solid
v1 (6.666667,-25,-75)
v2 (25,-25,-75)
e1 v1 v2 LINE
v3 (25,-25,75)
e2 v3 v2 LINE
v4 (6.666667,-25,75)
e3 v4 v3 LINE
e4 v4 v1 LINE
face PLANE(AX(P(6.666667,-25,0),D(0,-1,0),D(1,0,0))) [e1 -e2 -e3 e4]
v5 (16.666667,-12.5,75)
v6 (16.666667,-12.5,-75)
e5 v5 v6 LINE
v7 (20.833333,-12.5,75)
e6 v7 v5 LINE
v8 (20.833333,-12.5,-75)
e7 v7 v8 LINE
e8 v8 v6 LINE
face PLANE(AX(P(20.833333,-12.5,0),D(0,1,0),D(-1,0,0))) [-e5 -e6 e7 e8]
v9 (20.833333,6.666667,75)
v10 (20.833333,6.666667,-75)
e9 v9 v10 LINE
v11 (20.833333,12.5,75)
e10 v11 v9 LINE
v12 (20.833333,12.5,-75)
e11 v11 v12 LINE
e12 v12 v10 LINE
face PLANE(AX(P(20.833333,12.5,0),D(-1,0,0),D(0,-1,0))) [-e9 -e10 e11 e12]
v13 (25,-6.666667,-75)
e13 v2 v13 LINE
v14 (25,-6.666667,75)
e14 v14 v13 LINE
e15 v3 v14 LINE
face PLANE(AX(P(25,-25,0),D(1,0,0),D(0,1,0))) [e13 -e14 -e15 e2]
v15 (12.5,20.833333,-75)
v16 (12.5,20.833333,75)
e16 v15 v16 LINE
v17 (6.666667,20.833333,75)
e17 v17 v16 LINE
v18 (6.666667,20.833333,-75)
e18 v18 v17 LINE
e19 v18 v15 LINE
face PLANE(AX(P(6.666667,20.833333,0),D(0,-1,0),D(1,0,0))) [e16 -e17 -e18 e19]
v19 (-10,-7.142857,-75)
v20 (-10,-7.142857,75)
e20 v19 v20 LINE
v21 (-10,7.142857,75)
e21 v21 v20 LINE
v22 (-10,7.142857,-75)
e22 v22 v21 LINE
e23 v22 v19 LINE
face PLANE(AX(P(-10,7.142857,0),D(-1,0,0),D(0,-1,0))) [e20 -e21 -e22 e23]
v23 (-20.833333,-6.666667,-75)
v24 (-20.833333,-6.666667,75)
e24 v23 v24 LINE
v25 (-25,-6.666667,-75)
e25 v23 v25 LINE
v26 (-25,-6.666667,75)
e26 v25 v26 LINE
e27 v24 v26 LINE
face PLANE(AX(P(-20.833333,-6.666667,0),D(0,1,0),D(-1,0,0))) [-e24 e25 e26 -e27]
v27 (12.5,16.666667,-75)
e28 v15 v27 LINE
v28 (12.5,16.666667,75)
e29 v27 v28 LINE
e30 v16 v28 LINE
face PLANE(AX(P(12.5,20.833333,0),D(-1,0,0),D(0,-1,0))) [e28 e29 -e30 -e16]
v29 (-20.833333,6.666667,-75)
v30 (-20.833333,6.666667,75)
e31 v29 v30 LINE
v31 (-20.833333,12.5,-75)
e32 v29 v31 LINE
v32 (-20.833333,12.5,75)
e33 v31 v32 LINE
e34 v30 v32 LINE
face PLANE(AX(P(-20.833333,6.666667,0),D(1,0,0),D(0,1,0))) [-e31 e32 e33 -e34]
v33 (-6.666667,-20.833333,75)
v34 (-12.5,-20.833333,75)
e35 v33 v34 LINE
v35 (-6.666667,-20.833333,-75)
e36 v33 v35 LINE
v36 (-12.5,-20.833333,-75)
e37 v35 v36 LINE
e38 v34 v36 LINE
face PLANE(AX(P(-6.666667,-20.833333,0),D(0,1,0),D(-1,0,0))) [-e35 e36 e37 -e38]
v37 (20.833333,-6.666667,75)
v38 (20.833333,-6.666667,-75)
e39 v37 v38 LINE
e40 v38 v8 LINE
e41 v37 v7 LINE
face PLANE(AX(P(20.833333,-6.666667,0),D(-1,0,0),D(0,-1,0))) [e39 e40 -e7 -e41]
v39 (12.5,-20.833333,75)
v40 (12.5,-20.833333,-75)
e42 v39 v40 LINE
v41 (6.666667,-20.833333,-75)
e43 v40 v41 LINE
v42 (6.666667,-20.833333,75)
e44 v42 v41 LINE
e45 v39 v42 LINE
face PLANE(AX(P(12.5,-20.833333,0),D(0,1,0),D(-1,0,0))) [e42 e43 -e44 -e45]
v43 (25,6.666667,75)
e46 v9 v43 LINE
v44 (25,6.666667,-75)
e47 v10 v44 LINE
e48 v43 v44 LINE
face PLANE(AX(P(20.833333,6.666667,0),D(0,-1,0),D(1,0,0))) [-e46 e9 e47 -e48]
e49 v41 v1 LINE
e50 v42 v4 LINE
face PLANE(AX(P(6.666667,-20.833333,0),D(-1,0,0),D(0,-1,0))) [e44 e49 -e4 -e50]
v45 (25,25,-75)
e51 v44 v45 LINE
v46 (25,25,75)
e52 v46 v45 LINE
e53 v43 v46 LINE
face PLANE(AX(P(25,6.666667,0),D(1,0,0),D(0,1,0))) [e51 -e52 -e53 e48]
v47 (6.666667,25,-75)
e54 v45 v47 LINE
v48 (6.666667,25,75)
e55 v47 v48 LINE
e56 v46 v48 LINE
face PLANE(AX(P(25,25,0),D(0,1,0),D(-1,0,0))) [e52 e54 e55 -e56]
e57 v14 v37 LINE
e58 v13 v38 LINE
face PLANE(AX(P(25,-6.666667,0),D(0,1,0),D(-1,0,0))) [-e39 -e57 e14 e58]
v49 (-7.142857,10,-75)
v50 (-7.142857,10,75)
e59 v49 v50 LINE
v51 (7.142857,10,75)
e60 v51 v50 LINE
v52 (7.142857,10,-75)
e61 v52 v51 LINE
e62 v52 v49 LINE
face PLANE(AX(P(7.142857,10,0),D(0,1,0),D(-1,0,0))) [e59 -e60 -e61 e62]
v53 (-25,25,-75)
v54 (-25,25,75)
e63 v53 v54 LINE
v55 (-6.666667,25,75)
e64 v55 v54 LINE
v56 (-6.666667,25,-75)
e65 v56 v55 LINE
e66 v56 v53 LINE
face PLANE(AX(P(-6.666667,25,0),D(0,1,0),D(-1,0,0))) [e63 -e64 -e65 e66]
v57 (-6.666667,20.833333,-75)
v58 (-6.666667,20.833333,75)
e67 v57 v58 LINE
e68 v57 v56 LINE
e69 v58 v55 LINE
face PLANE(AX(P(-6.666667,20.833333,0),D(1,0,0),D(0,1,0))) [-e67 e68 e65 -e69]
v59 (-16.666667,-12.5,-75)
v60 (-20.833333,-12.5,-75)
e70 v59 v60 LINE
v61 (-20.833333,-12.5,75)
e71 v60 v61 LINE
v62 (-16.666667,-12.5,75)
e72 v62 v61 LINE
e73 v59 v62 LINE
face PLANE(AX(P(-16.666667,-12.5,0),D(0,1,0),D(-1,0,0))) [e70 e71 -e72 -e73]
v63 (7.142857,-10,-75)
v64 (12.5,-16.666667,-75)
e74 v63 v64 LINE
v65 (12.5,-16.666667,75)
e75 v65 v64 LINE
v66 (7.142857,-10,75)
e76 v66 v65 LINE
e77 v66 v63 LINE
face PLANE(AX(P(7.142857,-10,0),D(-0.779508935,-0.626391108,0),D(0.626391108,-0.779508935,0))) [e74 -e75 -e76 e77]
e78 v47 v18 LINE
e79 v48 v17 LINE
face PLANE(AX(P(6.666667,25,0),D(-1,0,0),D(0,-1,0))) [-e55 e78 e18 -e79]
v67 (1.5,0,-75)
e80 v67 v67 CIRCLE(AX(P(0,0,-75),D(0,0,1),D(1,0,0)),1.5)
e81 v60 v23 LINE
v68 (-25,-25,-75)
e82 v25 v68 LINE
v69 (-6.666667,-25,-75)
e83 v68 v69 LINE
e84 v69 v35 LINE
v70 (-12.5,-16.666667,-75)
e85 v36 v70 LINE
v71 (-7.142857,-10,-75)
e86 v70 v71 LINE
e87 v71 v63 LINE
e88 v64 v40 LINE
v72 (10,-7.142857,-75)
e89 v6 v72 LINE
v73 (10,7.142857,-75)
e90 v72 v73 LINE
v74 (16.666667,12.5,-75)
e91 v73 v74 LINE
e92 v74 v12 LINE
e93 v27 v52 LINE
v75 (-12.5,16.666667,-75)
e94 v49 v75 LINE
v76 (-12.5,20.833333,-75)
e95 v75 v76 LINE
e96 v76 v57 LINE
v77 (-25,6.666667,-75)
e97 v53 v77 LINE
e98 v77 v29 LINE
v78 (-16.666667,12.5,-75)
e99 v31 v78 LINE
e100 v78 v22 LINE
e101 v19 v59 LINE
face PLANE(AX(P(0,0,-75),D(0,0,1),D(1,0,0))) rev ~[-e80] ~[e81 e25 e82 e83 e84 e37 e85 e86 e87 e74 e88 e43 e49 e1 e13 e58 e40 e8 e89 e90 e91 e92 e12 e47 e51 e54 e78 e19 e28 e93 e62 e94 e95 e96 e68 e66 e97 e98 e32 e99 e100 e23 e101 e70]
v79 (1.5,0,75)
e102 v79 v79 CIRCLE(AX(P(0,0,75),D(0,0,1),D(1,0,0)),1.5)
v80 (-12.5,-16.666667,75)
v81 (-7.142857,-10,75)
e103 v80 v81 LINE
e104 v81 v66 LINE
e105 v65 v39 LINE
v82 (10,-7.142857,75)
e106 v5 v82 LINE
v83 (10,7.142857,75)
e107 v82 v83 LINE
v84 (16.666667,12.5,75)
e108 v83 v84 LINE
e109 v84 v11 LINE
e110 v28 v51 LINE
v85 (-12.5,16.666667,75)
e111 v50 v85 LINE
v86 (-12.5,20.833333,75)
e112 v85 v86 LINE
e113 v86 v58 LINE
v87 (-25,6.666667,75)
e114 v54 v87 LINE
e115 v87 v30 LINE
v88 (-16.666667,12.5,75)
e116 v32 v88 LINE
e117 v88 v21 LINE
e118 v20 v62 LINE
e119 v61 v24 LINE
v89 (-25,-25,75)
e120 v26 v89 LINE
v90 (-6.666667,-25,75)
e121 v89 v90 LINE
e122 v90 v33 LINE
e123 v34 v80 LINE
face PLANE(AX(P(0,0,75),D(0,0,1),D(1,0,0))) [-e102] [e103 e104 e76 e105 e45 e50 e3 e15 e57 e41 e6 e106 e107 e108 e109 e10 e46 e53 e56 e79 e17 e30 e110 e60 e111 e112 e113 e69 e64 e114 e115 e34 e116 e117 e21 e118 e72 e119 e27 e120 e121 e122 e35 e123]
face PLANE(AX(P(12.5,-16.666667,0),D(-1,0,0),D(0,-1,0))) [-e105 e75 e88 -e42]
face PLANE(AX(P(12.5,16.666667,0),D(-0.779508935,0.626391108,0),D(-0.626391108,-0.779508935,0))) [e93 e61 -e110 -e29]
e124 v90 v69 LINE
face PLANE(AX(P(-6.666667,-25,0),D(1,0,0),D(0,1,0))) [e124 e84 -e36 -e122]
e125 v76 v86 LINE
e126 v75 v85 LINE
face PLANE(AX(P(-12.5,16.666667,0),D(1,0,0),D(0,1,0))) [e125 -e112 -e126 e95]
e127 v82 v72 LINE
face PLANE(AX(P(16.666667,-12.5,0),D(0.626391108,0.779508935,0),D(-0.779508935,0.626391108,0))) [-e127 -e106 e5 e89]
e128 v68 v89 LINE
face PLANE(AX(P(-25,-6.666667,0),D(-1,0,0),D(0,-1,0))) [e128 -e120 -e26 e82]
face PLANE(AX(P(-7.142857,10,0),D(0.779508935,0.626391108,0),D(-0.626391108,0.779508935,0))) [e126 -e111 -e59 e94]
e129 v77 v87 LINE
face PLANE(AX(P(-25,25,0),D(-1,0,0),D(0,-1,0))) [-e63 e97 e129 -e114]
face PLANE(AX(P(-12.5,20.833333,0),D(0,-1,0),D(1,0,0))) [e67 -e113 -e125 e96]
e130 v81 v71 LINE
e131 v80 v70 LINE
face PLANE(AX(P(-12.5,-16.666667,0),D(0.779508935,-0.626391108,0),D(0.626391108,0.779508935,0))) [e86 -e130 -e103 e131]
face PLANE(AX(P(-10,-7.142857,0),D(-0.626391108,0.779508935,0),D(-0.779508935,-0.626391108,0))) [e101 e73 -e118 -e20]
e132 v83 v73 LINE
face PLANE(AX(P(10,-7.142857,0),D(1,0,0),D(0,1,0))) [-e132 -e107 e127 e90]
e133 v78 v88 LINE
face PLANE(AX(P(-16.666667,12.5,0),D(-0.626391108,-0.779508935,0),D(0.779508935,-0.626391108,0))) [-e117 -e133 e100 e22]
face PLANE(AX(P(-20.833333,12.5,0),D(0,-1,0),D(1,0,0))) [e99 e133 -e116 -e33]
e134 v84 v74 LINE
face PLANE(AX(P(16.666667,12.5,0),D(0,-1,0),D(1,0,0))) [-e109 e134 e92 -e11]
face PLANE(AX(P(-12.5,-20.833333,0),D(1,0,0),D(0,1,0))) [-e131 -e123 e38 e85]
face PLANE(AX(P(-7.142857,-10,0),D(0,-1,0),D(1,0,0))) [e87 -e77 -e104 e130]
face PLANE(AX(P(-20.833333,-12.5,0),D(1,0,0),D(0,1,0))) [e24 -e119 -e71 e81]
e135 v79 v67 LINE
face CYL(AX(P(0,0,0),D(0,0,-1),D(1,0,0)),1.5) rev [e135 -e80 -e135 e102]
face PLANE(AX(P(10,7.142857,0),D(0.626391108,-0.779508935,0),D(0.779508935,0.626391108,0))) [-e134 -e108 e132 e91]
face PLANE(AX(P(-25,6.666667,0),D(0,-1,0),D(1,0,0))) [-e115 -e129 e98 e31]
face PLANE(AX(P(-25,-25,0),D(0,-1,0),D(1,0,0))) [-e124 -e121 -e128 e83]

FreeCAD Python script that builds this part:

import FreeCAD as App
import Part
import Sketcher

V = App.Vector

doc = App.newDocument("Part")
body = doc.addObject("PartDesign::Body", "Body")

sketch1 = doc.addObject("Sketcher::SketchObject", "Sketch")
body.addObject(sketch1)
sketch1.AttachmentSupport = (doc.XY_Plane, [""])
sketch1.MapMode = "FlatFace"
sketch1.addGeometry(Part.LineSegment(V(25, 25, 0), V(6.7, 25, 0)), False)
sketch1.addGeometry(Part.LineSegment(V(6.7, 25, 0), V(6.7, 20.8, 0)), False)
sketch1.addGeometry(Part.LineSegment(V(6.7, 20.8, 0), V(12.5, 20.8, 0)), False)
sketch1.addGeometry(Part.LineSegment(V(12.5, 20.8, 0), V(12.5, 16.7, 0)), False)
sketch1.addGeometry(Part.LineSegment(V(12.5, 16.7, 0), V(7.1, 10, 0)), False)
sketch1.addGeometry(Part.LineSegment(V(7.1, 10, 0), V(-7.1, 10, 0)), False)
sketch1.addGeometry(Part.LineSegment(V(-7.1, 10, 0), V(-12.5, 16.7, 0)), False)
sketch1.addGeometry(Part.LineSegment(V(-12.5, 16.7, 0), V(-12.5, 20.8, 0)), False)
sketch1.addGeometry(Part.LineSegment(V(-12.5, 20.8, 0), V(-6.7, 20.8, 0)), False)
sketch1.addGeometry(Part.LineSegment(V(-6.7, 20.8, 0), V(-6.7, 25, 0)), False)
sketch1.addGeometry(Part.LineSegment(V(-6.7, 25, 0), V(-25, 25, 0)), False)
sketch1.addGeometry(Part.LineSegment(V(-25, 25, 0), V(-25, 6.7, 0)), False)
sketch1.addGeometry(Part.LineSegment(V(-25, 6.7, 0), V(-20.8, 6.7, 0)), False)
sketch1.addGeometry(Part.LineSegment(V(-20.8, 6.7, 0), V(-20.8, 12.5, 0)), False)
sketch1.addGeometry(Part.LineSegment(V(-20.8, 12.5, 0), V(-16.7, 12.5, 0)), False)
sketch1.addGeometry(Part.LineSegment(V(-16.7, 12.5, 0), V(-10, 7.1, 0)), False)
sketch1.addGeometry(Part.LineSegment(V(-10, 7.1, 0), V(-10, -7.1, 0)), False)
sketch1.addGeometry(Part.LineSegment(V(-10, -7.1, 0), V(-16.7, -12.5, 0)), False)
sketch1.addGeometry(Part.LineSegment(V(-16.7, -12.5, 0), V(-20.8, -12.5, 0)), False)
sketch1.addGeometry(Part.LineSegment(V(-20.8, -12.5, 0), V(-20.8, -6.7, 0)), False)
sketch1.addGeometry(Part.LineSegment(V(-20.8, -6.7, 0), V(-25, -6.7, 0)), False)
sketch1.addGeometry(Part.LineSegment(V(-25, -6.7, 0), V(-25, -25, 0)), False)
sketch1.addGeometry(Part.LineSegment(V(-25, -25, 0), V(-6.7, -25, 0)), False)
sketch1.addGeometry(Part.LineSegment(V(-6.7, -25, 0), V(-6.7, -20.8, 0)), False)
sketch1.addGeometry(Part.LineSegment(V(-6.7, -20.8, 0), V(-12.5, -20.8, 0)), False)
sketch1.addGeometry(Part.LineSegment(V(-12.5, -20.8, 0), V(-12.5, -16.7, 0)), False)
sketch1.addGeometry(Part.LineSegment(V(-12.5, -16.7, 0), V(-7.1, -10, 0)), False)
sketch1.addGeometry(Part.LineSegment(V(-7.1, -10, 0), V(7.1, -10, 0)), False)
sketch1.addGeometry(Part.LineSegment(V(7.1, -10, 0), V(12.5, -16.7, 0)), False)
sketch1.addGeometry(Part.LineSegment(V(12.5, -16.7, 0), V(12.5, -20.8, 0)), False)
sketch1.addGeometry(Part.LineSegment(V(12.5, -20.8, 0), V(6.7, -20.8, 0)), False)
sketch1.addGeometry(Part.LineSegment(V(6.7, -20.8, 0), V(6.7, -25, 0)), False)
sketch1.addGeometry(Part.LineSegment(V(6.7, -25, 0), V(25, -25, 0)), False)
sketch1.addGeometry(Part.LineSegment(V(25, -25, 0), V(25, -6.7, 0)), False)
sketch1.addGeometry(Part.LineSegment(V(25, -6.7, 0), V(20.8, -6.7, 0)), False)
sketch1.addGeometry(Part.LineSegment(V(20.8, -6.7, 0), V(20.8, -12.5, 0)), False)
sketch1.addGeometry(Part.LineSegment(V(20.8, -12.5, 0), V(16.7, -12.5, 0)), False)
sketch1.addGeometry(Part.LineSegment(V(16.7, -12.5, 0), V(10, -7.1, 0)), False)
sketch1.addGeometry(Part.LineSegment(V(10, -7.1, 0), V(10, 7.1, 0)), False)
sketch1.addGeometry(Part.LineSegment(V(10, 7.1, 0), V(16.7, 12.5, 0)), False)
sketch1.addGeometry(Part.LineSegment(V(16.7, 12.5, 0), V(20.8, 12.5, 0)), False)
sketch1.addGeometry(Part.LineSegment(V(20.8, 12.5, 0), V(20.8, 6.7, 0)), False)
sketch1.addGeometry(Part.LineSegment(V(20.8, 6.7, 0), V(25, 6.7, 0)), False)
sketch1.addGeometry(Part.LineSegment(V(25, 6.7, 0), V(25, 25, 0)), False)
sketch1.addGeometry(Part.Circle(V(0, 0, 0), V(0, 0, 1), 1.5), False)
sketch1.addConstraint(Sketcher.Constraint("Coincident", 0, 2, 1, 1))
sketch1.addConstraint(Sketcher.Constraint("Coincident", 1, 2, 2, 1))
sketch1.addConstraint(Sketcher.Constraint("Coincident", 2, 2, 3, 1))
sketch1.addConstraint(Sketcher.Constraint("Coincident", 3, 2, 4, 1))
sketch1.addConstraint(Sketcher.Constraint("Coincident", 4, 2, 5, 1))
sketch1.addConstraint(Sketcher.Constraint("Coincident", 5, 2, 6, 1))
sketch1.addConstraint(Sketcher.Constraint("Coincident", 6, 2, 7, 1))
sketch1.addConstraint(Sketcher.Constraint("Coincident", 7, 2, 8, 1))
sketch1.addConstraint(Sketcher.Constraint("Coincident", 8, 2, 9, 1))
sketch1.addConstraint(Sketcher.Constraint("Coincident", 9, 2, 10, 1))
sketch1.addConstraint(Sketcher.Constraint("Coincident", 10, 2, 11, 1))
sketch1.addConstraint(Sketcher.Constraint("Coincident", 11, 2, 12, 1))
sketch1.addConstraint(Sketcher.Constraint("Coincident", 12, 2, 13, 1))
sketch1.addConstraint(Sketcher.Constraint("Coincident", 13, 2, 14, 1))
sketch1.addConstraint(Sketcher.Constraint("Coincident", 14, 2, 15, 1))
sketch1.addConstraint(Sketcher.Constraint("Coincident", 15, 2, 16, 1))
sketch1.addConstraint(Sketcher.Constraint("Coincident", 16, 2, 17, 1))
sketch1.addConstraint(Sketcher.Constraint("Coincident", 17, 2, 18, 1))
sketch1.addConstraint(Sketcher.Constraint("Coincident", 18, 2, 19, 1))
sketch1.addConstraint(Sketcher.Constraint("Coincident", 19, 2, 20, 1))
sketch1.addConstraint(Sketcher.Constraint("Coincident", 20, 2, 21, 1))
sketch1.addConstraint(Sketcher.Constraint("Coincident", 21, 2, 22, 1))
sketch1.addConstraint(Sketcher.Constraint("Coincident", 22, 2, 23, 1))
sketch1.addConstraint(Sketcher.Constraint("Coincident", 23, 2, 24, 1))
sketch1.addConstraint(Sketcher.Constraint("Coincident", 24, 2, 25, 1))
sketch1.addConstraint(Sketcher.Constraint("Coincident", 25, 2, 26, 1))
sketch1.addConstraint(Sketcher.Constraint("Coincident", 26, 2, 27, 1))
sketch1.addConstraint(Sketcher.Constraint("Coincident", 27, 2, 28, 1))
sketch1.addConstraint(Sketcher.Constraint("Coincident", 28, 2, 29, 1))
sketch1.addConstraint(Sketcher.Constraint("Coincident", 29, 2, 30, 1))
sketch1.addConstraint(Sketcher.Constraint("Coincident", 30, 2, 31, 1))
sketch1.addConstraint(Sketcher.Constraint("Coincident", 31, 2, 32, 1))
sketch1.addConstraint(Sketcher.Constraint("Coincident", 32, 2, 33, 1))
sketch1.addConstraint(Sketcher.Constraint("Coincident", 33, 2, 34, 1))
sketch1.addConstraint(Sketcher.Constraint("Coincident", 34, 2, 35, 1))
sketch1.addConstraint(Sketcher.Constraint("Coincident", 35, 2, 36, 1))
sketch1.addConstraint(Sketcher.Constraint("Coincident", 36, 2, 37, 1))
sketch1.addConstraint(Sketcher.Constraint("Coincident", 37, 2, 38, 1))
sketch1.addConstraint(Sketcher.Constraint("Coincident", 38, 2, 39, 1))
sketch1.addConstraint(Sketcher.Constraint("Coincident", 39, 2, 40, 1))
sketch1.addConstraint(Sketcher.Constraint("Coincident", 40, 2, 41, 1))
sketch1.addConstraint(Sketcher.Constraint("Coincident", 41, 2, 42, 1))
sketch1.addConstraint(Sketcher.Constraint("Coincident", 42, 2, 43, 1))
sketch1.addConstraint(Sketcher.Constraint("Coincident", 43, 2, 0, 1))
sketch1.addConstraint(Sketcher.Constraint("Horizontal", 0))
sketch1.addConstraint(Sketcher.Constraint("Vertical", 1))
sketch1.addConstraint(Sketcher.Constraint("Horizontal", 2))
sketch1.addConstraint(Sketcher.Constraint("Vertical", 3))
sketch1.addConstraint(Sketcher.Constraint("Horizontal", 5))
sketch1.addConstraint(Sketcher.Constraint("Vertical", 7))
sketch1.addConstraint(Sketcher.Constraint("Horizontal", 8))
sketch1.addConstraint(Sketcher.Constraint("Vertical", 9))
sketch1.addConstraint(Sketcher.Constraint("Horizontal", 10))
sketch1.addConstraint(Sketcher.Constraint("Vertical", 11))
sketch1.addConstraint(Sketcher.Constraint("Horizontal", 12))
sketch1.addConstraint(Sketcher.Constraint("Vertical", 13))
sketch1.addConstraint(Sketcher.Constraint("Horizontal", 14))
sketch1.addConstraint(Sketcher.Constraint("Vertical", 16))
sketch1.addConstraint(Sketcher.Constraint("Horizontal", 18))
sketch1.addConstraint(Sketcher.Constraint("Vertical", 19))
sketch1.addConstraint(Sketcher.Constraint("Horizontal", 20))
sketch1.addConstraint(Sketcher.Constraint("Vertical", 21))
sketch1.addConstraint(Sketcher.Constraint("Horizontal", 22))
sketch1.addConstraint(Sketcher.Constraint("Vertical", 23))
sketch1.addConstraint(Sketcher.Constraint("Horizontal", 24))
sketch1.addConstraint(Sketcher.Constraint("Vertical", 25))
sketch1.addConstraint(Sketcher.Constraint("Horizontal", 27))
sketch1.addConstraint(Sketcher.Constraint("Vertical", 29))
sketch1.addConstraint(Sketcher.Constraint("Horizontal", 30))
sketch1.addConstraint(Sketcher.Constraint("Vertical", 31))
sketch1.addConstraint(Sketcher.Constraint("Horizontal", 32))
sketch1.addConstraint(Sketcher.Constraint("Vertical", 33))
sketch1.addConstraint(Sketcher.Constraint("Horizontal", 34))
sketch1.addConstraint(Sketcher.Constraint("Vertical", 35))
sketch1.addConstraint(Sketcher.Constraint("Horizontal", 36))
sketch1.addConstraint(Sketcher.Constraint("Vertical", 38))
sketch1.addConstraint(Sketcher.Constraint("Horizontal", 40))
sketch1.addConstraint(Sketcher.Constraint("Vertical", 41))
sketch1.addConstraint(Sketcher.Constraint("Horizontal", 42))
sketch1.addConstraint(Sketcher.Constraint("Vertical", 43))
sketch1.addConstraint(Sketcher.Constraint("Coincident", 44, 3, -1, 1))
sketch1.addConstraint(Sketcher.Constraint("Symmetric", 0, 2, 22, 2, -1, 1))
sketch1.addConstraint(Sketcher.Constraint("Symmetric", 2, 2, 24, 2, -1, 1))
sketch1.addConstraint(Sketcher.Constraint("Symmetric", 4, 2, 26, 2, -1, 1))
sketch1.addConstraint(Sketcher.Constraint("Symmetric", 6, 2, 28, 2, -1, 1))
sketch1.addConstraint(Sketcher.Constraint("Symmetric", 8, 2, 30, 2, -1, 1))
sketch1.addConstraint(Sketcher.Constraint("Symmetric", 10, 2, 32, 2, -1, 1))
sketch1.addConstraint(Sketcher.Constraint("Symmetric", 12, 2, 34, 2, -1, 1))
sketch1.addConstraint(Sketcher.Constraint("Symmetric", 14, 2, 36, 2, -1, 1))
sketch1.addConstraint(Sketcher.Constraint("Symmetric", 15, 2, 37, 2, -1, 1))
sketch1.addConstraint(Sketcher.Constraint("Symmetric", 17, 2, 39, 2, -1, 1))
sketch1.addConstraint(Sketcher.Constraint("Symmetric", 19, 2, 41, 2, -1, 1))
sketch1.addConstraint(Sketcher.Constraint("Symmetric", 3, 2, 6, 2, -2))
sketch1.addConstraint(Sketcher.Constraint("Symmetric", 1, 2, 8, 2, -2))
sketch1.addConstraint(Sketcher.Constraint("Symmetric", 21, 2, 32, 2, -2))
sketch1.addConstraint(Sketcher.Constraint("Symmetric", 19, 2, 34, 2, -2))
sketch1.addConstraint(Sketcher.Constraint("Symmetric", 17, 2, 36, 2, -2))
sketch1.addConstraint(Sketcher.Constraint("Perpendicular", 4, 15))
sketch1.addConstraint(Sketcher.Constraint("Perpendicular", 6, 17))
sketch1.addConstraint(Sketcher.Constraint("Perpendicular", 15, 26))
sketch1.addConstraint(Sketcher.Constraint("Perpendicular", 17, 28))
sketch1.addConstraint(Sketcher.Constraint("Perpendicular", 28, 39))
sketch1.addConstraint(Sketcher.Constraint("Horizontal", 16, 2, 37, 2))
sketch1.addConstraint(Sketcher.Constraint("Vertical", 33, 2, 42, 2))
sketch1.addConstraint(Sketcher.Constraint("Equal", 12, 14))
sketch1.addConstraint(Sketcher.Constraint("Equal", 42, 1))
sketch1.addConstraint(Sketcher.Constraint("Equal", 1, 3))
sketch1.addConstraint(Sketcher.Constraint("Equal", 32, 11))
sketch1.addConstraint(Sketcher.Constraint("Equal", 30, 13))
sketch1.addConstraint(Sketcher.Constraint("Equal", 27, 16))
sketch1.addConstraint(Sketcher.Constraint("Equal", 6, 15))
sketch1.addConstraint(Sketcher.Constraint("Diameter", 44, 3.0))
sketch1.addConstraint(Sketcher.Constraint("DistanceY", -1, 1, 0, 2, 25.0))
sketch1.addConstraint(Sketcher.Constraint("DistanceY", -1, 1, 4, 2, 10.0))
sketch1.addConstraint(Sketcher.Constraint("DistanceY", 11, 2, 6, 2, 10.0))
sketch1.addConstraint(Sketcher.Constraint("DistanceX", -1, 1, 2, 2, 12.5))
sketch1.addConstraint(Sketcher.Constraint("DistanceX", 0, 2, 0, 1, 18.333333))
sketch1.addConstraint(Sketcher.Constraint("DistanceX", 5, 2, 5, 1, 14.285714))
pad1 = doc.addObject("PartDesign::Pad", "Pad")
body.addObject(pad1)
pad1.Profile = sketch1
pad1.Length = 150
pad1.Midplane = True

doc.recompute()
